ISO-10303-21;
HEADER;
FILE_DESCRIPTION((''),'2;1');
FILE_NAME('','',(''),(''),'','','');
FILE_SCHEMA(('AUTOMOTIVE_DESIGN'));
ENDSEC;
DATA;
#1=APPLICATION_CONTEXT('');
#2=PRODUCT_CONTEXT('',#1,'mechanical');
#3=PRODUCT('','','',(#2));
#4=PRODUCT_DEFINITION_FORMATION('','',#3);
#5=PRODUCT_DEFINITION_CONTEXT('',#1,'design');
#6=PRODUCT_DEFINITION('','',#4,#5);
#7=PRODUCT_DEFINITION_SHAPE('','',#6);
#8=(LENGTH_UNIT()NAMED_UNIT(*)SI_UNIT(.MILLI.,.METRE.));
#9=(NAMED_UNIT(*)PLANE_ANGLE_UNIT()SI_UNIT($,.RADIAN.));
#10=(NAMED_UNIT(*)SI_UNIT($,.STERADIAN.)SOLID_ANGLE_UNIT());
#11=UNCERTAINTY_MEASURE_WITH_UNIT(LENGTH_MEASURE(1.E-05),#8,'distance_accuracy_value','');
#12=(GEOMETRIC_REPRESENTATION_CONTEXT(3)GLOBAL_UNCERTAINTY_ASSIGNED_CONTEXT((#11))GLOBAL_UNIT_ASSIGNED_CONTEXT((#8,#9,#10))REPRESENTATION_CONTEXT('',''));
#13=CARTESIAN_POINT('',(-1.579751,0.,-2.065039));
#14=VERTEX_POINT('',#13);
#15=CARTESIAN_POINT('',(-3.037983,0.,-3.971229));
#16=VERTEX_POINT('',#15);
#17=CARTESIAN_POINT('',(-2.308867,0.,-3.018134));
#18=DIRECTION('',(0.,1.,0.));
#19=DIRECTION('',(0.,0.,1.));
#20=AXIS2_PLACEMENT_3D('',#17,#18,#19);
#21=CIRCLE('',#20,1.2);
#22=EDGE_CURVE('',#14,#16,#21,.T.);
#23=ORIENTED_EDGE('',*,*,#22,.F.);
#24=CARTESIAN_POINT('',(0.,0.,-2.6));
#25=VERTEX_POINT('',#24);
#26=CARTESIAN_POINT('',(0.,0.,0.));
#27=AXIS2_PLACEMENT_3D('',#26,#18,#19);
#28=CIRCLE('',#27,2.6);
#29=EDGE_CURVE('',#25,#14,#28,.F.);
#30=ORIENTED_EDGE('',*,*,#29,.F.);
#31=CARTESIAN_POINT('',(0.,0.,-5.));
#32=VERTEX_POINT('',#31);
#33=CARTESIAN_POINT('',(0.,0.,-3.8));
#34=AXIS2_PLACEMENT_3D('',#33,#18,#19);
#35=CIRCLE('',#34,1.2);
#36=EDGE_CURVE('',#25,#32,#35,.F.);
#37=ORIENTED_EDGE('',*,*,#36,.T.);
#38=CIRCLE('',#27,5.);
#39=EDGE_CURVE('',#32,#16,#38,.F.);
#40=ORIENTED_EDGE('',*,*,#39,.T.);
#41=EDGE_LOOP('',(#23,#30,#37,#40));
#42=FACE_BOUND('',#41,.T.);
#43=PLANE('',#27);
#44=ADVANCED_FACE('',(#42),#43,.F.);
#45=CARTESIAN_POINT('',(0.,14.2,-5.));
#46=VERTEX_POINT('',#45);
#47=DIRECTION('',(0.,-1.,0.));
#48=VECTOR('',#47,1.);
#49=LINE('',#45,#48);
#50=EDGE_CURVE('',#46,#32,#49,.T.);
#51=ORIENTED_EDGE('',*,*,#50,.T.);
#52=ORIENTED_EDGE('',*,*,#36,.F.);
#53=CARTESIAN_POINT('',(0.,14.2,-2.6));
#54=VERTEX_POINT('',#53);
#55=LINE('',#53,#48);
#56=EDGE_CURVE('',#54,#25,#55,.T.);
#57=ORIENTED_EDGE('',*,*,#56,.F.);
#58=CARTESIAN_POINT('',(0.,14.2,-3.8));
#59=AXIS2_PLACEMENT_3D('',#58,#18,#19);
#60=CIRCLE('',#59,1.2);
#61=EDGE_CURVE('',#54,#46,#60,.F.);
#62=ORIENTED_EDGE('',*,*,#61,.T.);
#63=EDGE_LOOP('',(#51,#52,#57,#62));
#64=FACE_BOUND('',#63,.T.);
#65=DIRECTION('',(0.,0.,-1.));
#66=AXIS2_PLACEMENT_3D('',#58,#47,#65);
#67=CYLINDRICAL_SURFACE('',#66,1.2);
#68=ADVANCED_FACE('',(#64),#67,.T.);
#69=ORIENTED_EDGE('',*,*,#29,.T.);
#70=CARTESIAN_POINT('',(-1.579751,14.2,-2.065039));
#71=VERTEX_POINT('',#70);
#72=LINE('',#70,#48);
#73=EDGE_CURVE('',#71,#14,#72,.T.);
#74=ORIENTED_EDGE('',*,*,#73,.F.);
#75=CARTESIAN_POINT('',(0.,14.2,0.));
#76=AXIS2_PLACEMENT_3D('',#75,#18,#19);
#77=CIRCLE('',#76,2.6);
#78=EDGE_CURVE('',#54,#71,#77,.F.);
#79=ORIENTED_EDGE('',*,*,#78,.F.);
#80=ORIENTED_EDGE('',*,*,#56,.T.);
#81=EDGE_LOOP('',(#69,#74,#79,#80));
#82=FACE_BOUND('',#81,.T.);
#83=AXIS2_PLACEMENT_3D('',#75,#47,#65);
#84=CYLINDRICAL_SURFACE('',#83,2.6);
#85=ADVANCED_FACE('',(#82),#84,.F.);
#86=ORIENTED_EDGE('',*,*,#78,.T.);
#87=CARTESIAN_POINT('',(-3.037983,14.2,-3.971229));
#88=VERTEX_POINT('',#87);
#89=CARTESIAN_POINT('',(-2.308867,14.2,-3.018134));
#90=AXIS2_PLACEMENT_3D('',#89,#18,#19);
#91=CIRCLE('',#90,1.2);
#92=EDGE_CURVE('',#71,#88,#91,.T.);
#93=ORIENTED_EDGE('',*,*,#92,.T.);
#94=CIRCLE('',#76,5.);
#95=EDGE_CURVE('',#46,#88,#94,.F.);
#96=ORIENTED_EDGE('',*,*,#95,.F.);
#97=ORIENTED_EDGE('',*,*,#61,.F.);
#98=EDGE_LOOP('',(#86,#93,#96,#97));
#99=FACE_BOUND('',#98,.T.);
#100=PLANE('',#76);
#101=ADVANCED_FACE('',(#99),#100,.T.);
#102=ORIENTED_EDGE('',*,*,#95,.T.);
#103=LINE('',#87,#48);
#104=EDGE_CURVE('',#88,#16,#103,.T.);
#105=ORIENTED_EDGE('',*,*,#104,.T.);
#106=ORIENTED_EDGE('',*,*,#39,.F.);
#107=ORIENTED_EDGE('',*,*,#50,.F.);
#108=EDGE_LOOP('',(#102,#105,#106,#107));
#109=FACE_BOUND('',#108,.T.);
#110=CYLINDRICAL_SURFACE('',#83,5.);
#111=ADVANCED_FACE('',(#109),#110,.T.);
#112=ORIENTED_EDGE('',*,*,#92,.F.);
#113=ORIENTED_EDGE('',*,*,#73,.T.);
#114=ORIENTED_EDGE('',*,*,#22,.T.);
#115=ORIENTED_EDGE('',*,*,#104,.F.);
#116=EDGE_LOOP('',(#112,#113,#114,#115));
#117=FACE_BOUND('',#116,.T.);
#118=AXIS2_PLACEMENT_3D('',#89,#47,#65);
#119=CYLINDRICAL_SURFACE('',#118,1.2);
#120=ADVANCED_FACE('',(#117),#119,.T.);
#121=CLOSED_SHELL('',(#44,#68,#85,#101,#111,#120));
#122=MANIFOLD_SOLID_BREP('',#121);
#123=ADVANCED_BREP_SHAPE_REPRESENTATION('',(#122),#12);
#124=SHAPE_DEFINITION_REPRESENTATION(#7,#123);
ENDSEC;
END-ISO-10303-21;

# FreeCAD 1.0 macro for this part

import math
import FreeCAD as App
import Part
import Sketcher

doc = App.newDocument("Part")
body = doc.addObject("PartDesign::Body", "Body")

# Sketch on XZ plane
sketch1 = doc.addObject("Sketcher::SketchObject", "Sketch")
body.addObject(sketch1)
sketch1.AttachmentSupport = (doc.XZ_Plane, [""])
sketch1.MapMode = "FlatFace"
sketch1.addGeometry(Part.ArcOfCircle(Part.Circle(App.Vector(0, 0, 0), App.Vector(0, 0, 1), 2.6), math.radians(-90), math.radians(233)), False)
sketch1.addGeometry(Part.ArcOfCircle(Part.Circle(App.Vector(-2.3, -3, 0), App.Vector(0, 0, 1), 1.2), math.radians(-127), math.radians(53)), False)
sketch1.addGeometry(Part.ArcOfCircle(Part.Circle(App.Vector(0, 0, 0), App.Vector(0, 0, 1), 5), math.radians(-90), math.radians(233)), False)
sketch1.addGeometry(Part.ArcOfCircle(Part.Circle(App.Vector(0, -3.8, 0), App.Vector(0, 0, 1), 1.2), math.radians(90), math.radians(270)), False)
sketch1.addConstraint(Sketcher.Constraint("Tangent", 0, 2, 1, 2))
sketch1.addConstraint(Sketcher.Constraint("Tangent", 1, 1, 2, 2))
sketch1.addConstraint(Sketcher.Constraint("Tangent", 2, 1, 3, 2))
sketch1.addConstraint(Sketcher.Constraint("Tangent", 3, 1, 0, 1))
sketch1.addConstraint(Sketcher.Constraint("Coincident", 0, 3, -1, 1))
sketch1.addConstraint(Sketcher.Constraint("Coincident", 2, 3, -1, 1))
sketch1.addConstraint(Sketcher.Constraint("PointOnObject", 3, 3, -2))
sketch1.addConstraint(Sketcher.Constraint("Radius", 2, 5.0))
sketch1.addConstraint(Sketcher.Constraint("Radius", 0, 2.6))
sketch1.addConstraint(Sketcher.Constraint("DistanceX", 0, 2, -1, 1, 1.579751))
pad1 = doc.addObject("PartDesign::Pad", "Pad")
body.addObject(pad1)
pad1.Profile = sketch1
pad1.Length = 14.2
pad1.Reversed = True

doc.recompute()
